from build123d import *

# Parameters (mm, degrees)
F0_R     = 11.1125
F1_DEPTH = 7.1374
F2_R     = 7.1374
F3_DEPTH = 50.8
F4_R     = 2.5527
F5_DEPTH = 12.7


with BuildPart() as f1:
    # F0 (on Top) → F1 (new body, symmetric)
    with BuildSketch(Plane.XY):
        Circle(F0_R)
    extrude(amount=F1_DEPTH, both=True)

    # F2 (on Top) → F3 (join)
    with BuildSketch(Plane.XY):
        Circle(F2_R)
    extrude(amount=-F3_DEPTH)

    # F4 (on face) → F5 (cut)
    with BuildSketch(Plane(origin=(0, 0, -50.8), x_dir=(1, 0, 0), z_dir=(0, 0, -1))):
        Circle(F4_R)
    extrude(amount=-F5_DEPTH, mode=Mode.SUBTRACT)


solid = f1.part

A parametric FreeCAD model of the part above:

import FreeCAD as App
import Part
import Sketcher

V = App.Vector
Q = App.Units.Quantity

doc = App.newDocument("Part")
body = doc.addObject("PartDesign::Body", "Body")

# Sketch on XY plane
sketch1 = doc.addObject("Sketcher::SketchObject", "Sketch")
body.addObject(sketch1)
sketch1.AttachmentSupport = (doc.XY_Plane, [""])
sketch1.MapMode = "FlatFace"
sketch1.addGeometry(Part.Circle(V(0, 0, 0), V(0, 0, 1), 11), False)
sketch1.addConstraint(Sketcher.Constraint("Coincident", 0, 3, -1, 1))
sketch1.addConstraint(Sketcher.Constraint("Diameter", 0, Q("0.875 in")))
pad1 = doc.addObject("PartDesign::Pad", "Pad")
body.addObject(pad1)
pad1.Profile = sketch1
pad1.Length = Q("0.562 in")
pad1.Midplane = True

# Sketch on XY plane
sketch2 = doc.addObject("Sketcher::SketchObject", "Sketch001")
body.addObject(sketch2)
sketch2.AttachmentSupport = (doc.XY_Plane, [""])
sketch2.MapMode = "FlatFace"
sketch2.addGeometry(Part.Circle(V(0, 0, 0), V(0, 0, 1), 7), False)
sketch2.addConstraint(Sketcher.Constraint("Coincident", 0, 3, -1, 1))
sketch2.addConstraint(Sketcher.Constraint("Diameter", 0, Q("0.562 in")))
pad2 = doc.addObject("PartDesign::Pad", "Pad001")
body.addObject(pad2)
pad2.Profile = sketch2
pad2.Length = Q("2 in")
pad2.Reversed = True

# Sketch on XY plane
sketch3 = doc.addObject("Sketcher::SketchObject", "Sketch002")
body.addObject(sketch3)
sketch3.AttachmentSupport = (doc.XY_Plane, [""])
sketch3.MapMode = "FlatFace"
sketch3.AttachmentOffset = App.Placement(V(0, 0, -2 * 25.4), App.Rotation())
sketch3.addGeometry(Part.Circle(V(0, 0, 0), V(0, 0, 1), 2.6), False)
sketch3.addConstraint(Sketcher.Constraint("Coincident", 0, 3, -1, 1))
sketch3.addConstraint(Sketcher.Constraint("Diameter", 0, Q("0.201 in")))
pocket1 = doc.addObject("PartDesign::Pocket", "Pocket")
body.addObject(pocket1)
pocket1.Profile = sketch3
pocket1.Length = Q("0.5 in")
pocket1.Reversed = True

doc.recompute()
